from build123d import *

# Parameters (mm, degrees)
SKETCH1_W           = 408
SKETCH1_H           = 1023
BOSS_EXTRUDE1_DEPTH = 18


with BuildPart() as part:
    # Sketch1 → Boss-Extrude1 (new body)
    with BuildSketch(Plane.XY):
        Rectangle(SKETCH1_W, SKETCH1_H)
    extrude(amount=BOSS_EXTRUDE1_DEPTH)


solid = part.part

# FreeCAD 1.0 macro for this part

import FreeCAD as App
import Part
import Sketcher
from FreeCAD import Vector


def add_polygon(sketch, points):
    """Adds a closed chain of lines whose ends are joined by coincident constraints."""
    first, n = sketch.GeometryCount, len(points)
    for a, b in zip(points, points[1:] + points[:1]):
        sketch.addGeometry(Part.LineSegment(App.Vector(*a, 0), App.Vector(*b, 0)), False)
    for i in range(n):
        sketch.addConstraint(Sketcher.Constraint("Coincident", first + i, 2, first + (i + 1) % n, 1))

doc = App.newDocument("Part")
params = doc.addObject("Spreadsheet::Sheet", "Params")
for row, (alias, value) in enumerate([
    ("sketch1_width", "408 mm"),
    ("sketch1_height", "1023 mm"),
    ("pad1_length", "18 mm"),
], start=1):
    params.set(f"A{row}", alias)
    params.set(f"B{row}", "=" + value)
    params.setAlias(f"B{row}", alias)

body = doc.addObject("PartDesign::Body", "Body")

sketch1 = body.newObject("Sketcher::SketchObject", "Sketch")
sketch1.AttachmentSupport = (doc.getObject("XY_Plane"), [""])
sketch1.MapMode = "FlatFace"
add_polygon(sketch1, [(-204, 512), (-204, -512), (204, -512), (204, 512)])
sketch1.addConstraint([
    Sketcher.Constraint("Vertical", 0),
    Sketcher.Constraint("Horizontal", 1),
    Sketcher.Constraint("Vertical", 2),
    Sketcher.Constraint("Horizontal", 3),
    Sketcher.Constraint("Symmetric", 0, 2, 2, 2, -1, 1),
    Sketcher.Constraint("DistanceX", 1, 1, 1, 2, 408.0),
    Sketcher.Constraint("DistanceY", 0, 2, 0, 1, 1023.0),
])
sketch1.setExpression("Constraints[9]", "Params.sketch1_width")
sketch1.setExpression("Constraints[10]", "Params.sketch1_height")
pad1 = body.newObject("PartDesign::Pad", "Pad")
pad1.Profile = sketch1
pad1.setExpression("Length", "Params.pad1_length")

doc.recompute()
